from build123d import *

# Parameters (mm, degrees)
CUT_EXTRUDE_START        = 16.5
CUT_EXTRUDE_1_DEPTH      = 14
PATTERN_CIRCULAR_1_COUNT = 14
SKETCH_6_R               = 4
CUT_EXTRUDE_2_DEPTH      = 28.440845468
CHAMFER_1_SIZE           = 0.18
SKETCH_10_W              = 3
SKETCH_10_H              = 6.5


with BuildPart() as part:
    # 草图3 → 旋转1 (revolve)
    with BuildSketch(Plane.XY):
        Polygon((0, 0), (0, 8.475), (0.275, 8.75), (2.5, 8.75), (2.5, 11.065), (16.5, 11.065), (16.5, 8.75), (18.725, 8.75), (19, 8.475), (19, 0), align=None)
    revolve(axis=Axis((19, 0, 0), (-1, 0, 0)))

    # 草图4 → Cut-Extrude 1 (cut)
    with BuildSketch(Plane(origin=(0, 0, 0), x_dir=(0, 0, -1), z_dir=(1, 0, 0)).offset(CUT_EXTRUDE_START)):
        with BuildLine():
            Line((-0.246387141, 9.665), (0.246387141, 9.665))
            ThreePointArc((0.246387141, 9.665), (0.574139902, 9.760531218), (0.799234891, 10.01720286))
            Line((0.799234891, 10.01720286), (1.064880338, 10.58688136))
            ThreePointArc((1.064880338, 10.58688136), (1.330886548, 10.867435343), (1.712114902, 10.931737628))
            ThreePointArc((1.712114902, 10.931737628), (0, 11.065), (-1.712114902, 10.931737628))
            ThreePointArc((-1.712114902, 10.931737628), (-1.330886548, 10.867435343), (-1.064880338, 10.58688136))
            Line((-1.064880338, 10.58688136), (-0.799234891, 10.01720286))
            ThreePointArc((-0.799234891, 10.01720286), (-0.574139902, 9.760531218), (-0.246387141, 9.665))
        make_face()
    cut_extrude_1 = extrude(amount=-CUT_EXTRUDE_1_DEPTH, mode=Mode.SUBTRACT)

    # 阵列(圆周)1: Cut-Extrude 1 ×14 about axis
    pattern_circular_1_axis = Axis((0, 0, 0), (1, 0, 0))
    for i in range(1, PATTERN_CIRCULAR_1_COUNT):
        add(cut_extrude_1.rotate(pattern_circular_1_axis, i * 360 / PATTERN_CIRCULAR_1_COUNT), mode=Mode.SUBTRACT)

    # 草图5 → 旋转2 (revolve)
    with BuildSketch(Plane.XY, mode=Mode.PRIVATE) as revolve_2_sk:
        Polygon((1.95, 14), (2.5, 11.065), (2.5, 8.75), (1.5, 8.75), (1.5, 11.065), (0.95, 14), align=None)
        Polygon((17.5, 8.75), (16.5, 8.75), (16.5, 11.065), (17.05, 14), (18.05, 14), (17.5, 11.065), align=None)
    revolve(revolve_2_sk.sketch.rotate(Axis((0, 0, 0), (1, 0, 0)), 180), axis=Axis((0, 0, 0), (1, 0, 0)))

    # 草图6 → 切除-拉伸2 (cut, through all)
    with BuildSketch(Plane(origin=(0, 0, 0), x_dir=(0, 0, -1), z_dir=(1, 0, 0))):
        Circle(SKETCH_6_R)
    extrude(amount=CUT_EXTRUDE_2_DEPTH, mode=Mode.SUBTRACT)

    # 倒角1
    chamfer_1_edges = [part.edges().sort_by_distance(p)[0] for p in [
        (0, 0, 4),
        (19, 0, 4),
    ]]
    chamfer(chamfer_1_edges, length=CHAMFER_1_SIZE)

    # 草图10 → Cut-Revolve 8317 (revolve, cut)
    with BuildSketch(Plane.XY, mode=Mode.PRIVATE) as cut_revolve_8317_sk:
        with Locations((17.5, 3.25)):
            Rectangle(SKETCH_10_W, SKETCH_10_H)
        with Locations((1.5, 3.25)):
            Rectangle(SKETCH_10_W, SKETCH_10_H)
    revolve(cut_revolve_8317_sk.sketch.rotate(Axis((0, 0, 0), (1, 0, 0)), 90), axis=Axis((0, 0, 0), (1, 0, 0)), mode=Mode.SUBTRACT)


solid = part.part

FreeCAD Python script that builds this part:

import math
import FreeCAD as App
import Part
import Sketcher
Q = App.Units.Quantity


def edges_at(feature, points):
    """Names of the edges that pass closest to the given points."""
    edges = feature.Shape.Edges
    near = lambda p: min(range(len(edges)), key=lambda i: edges[i].distToShape(Part.Vertex(*p))[0])
    return sorted({f"Edge{near(p) + 1}" for p in points})


def add_polygon(sketch, points):
    """Adds a closed chain of lines whose ends are joined by coincident constraints."""
    first, n = sketch.GeometryCount, len(points)
    for a, b in zip(points, points[1:] + points[:1]):
        sketch.addGeometry(Part.LineSegment(App.Vector(*a, 0), App.Vector(*b, 0)), False)
    for i in range(n):
        sketch.addConstraint(Sketcher.Constraint("Coincident", first + i, 2, first + (i + 1) % n, 1))

doc = App.newDocument("Part")
params = doc.addObject("Spreadsheet::Sheet", "Params")
for row, (alias, value) in enumerate([
    ("sketch1_width", "19 mm"),
    ("sketch1_width2", "14 mm"),
    ("revolution_angle", "360 deg"),
    ("sketch2_radius", "0.61 mm"),
    ("pocket1_length", "14 mm"),
    ("sketch3_width", "1 mm"),
    ("revolution2_angle", "360 deg"),
    ("sketch4_diameter", "8 mm"),
    ("chamfer_size", "0.18 mm"),
    ("sketch5_width", "3 mm"),
    ("sketch5_height", "6.5 mm"),
    ("groove_angle", "360 deg"),
], start=1):
    params.set(f"A{row}", alias)
    params.set(f"B{row}", "=" + value)
    params.setAlias(f"B{row}", alias)

body = doc.addObject("PartDesign::Body", "Body")

# Sketch on XY plane
sketch1 = body.newObject("Sketcher::SketchObject", "Sketch")
sketch1.AttachmentSupport = (doc.getObject("XY_Plane"), [""])
sketch1.MapMode = "FlatFace"
add_polygon(sketch1, [(0, 8.47), (0, 0), (19, 0), (19, 8.47), (18.73, 8.75), (16.5, 8.75), (16.5, 11.06), (2.5, 11.06), (2.5, 8.75), (0.28, 8.75)])  # lines 0-9
sketch1.addConstraint(Sketcher.Constraint("Vertical", 0))
sketch1.addConstraint(Sketcher.Constraint("Horizontal", 1))
sketch1.addConstraint(Sketcher.Constraint("Vertical", 2))
sketch1.addConstraint(Sketcher.Constraint("Horizontal", 4))
sketch1.addConstraint(Sketcher.Constraint("Vertical", 5))
sketch1.addConstraint(Sketcher.Constraint("Horizontal", 6))
sketch1.addConstraint(Sketcher.Constraint("Vertical", 7))
sketch1.addConstraint(Sketcher.Constraint("Horizontal", 8))
sketch1.addConstraint(Sketcher.Constraint("Coincident", 0, 2, -1, 1))
sketch1.addConstraint(Sketcher.Constraint("Perpendicular", 3, 9))
sketch1.addConstraint(Sketcher.Constraint("Horizontal", 4, 2, 7, 2))
sketch1.addConstraint(Sketcher.Constraint("Horizontal", 2, 2, 9, 2))
sketch1.addConstraint(Sketcher.Constraint("Equal", 4, 8))
sketch1.addConstraint(Sketcher.Constraint("Equal", 3, 9))
sketch1.addConstraint(Sketcher.Constraint("DistanceX", 1, 1, 1, 2, Q("19 mm")))
sketch1.addConstraint(Sketcher.Constraint("DistanceX", 6, 2, 6, 1, Q("14 mm")))
sketch1.addConstraint(Sketcher.Constraint("DistanceX", 4, 2, 4, 1, Q("2.225 mm")))
sketch1.addConstraint(Sketcher.Constraint("DistanceY", 0, 2, 0, 1, Q("8.475 mm")))
sketch1.addConstraint(Sketcher.Constraint("DistanceY", 5, 1, 5, 2, Q("2.315 mm")))
sketch1.setExpression("Constraints[24]", "Params.sketch1_width")
sketch1.setExpression("Constraints[25]", "Params.sketch1_width2")
revolution = body.newObject("PartDesign::Revolution", "Revolution")
revolution.Profile = sketch1
revolution.ReferenceAxis = (sketch1, ["H_Axis"])
revolution.setExpression("Angle", "Params.revolution_angle")

# Sketch on YZ plane
sketch2 = body.newObject("Sketcher::SketchObject", "Sketch001")
sketch2.AttachmentSupport = (doc.getObject("YZ_Plane"), [""])
sketch2.MapMode = "FlatFace"
sketch2.AttachmentOffset = App.Placement(App.Vector(0, 0, 16.5), App.Rotation())
sketch2.addGeometry(Part.LineSegment(App.Vector(9.66, 0.25, 0), App.Vector(9.66, -0.25, 0)), False)
sketch2.addGeometry(Part.ArcOfCircle(Part.Circle(App.Vector(10.28, -0.25, 0), App.Vector(0, 0, 1), 0.61), math.radians(180), math.radians(245)), False)
sketch2.addGeometry(Part.LineSegment(App.Vector(10.02, -0.8, 0), App.Vector(10.59, -1.06, 0)), False)
sketch2.addGeometry(Part.ArcOfCircle(Part.Circle(App.Vector(10.33, -1.62, 0), App.Vector(0, 0, 1), 0.61), math.radians(-9), math.radians(65)), False)
sketch2.addGeometry(Part.ArcOfCircle(Part.Circle(App.Vector(0, 0, 0), App.Vector(0, 0, 1), 11.07), math.radians(-8.9), math.radians(8.9)), False)
sketch2.addGeometry(Part.ArcOfCircle(Part.Circle(App.Vector(10.33, 1.62, 0), App.Vector(0, 0, 1), 0.61), math.radians(-65), math.radians(9)), False)
sketch2.addGeometry(Part.LineSegment(App.Vector(10.59, 1.06, 0), App.Vector(10.02, 0.8, 0)), False)
sketch2.addGeometry(Part.ArcOfCircle(Part.Circle(App.Vector(10.28, 0.25, 0), App.Vector(0, 0, 1), 0.61), math.radians(115), math.radians(180)), False)
sketch2.addConstraint(Sketcher.Constraint("Tangent", 0, 2, 1, 1))
sketch2.addConstraint(Sketcher.Constraint("Tangent", 1, 2, 2, 1))
sketch2.addConstraint(Sketcher.Constraint("Tangent", 2, 2, 3, 2))
sketch2.addConstraint(Sketcher.Constraint("Tangent", 3, 1, 4, 1))
sketch2.addConstraint(Sketcher.Constraint("Tangent", 4, 2, 5, 2))
sketch2.addConstraint(Sketcher.Constraint("Tangent", 5, 1, 6, 1))
sketch2.addConstraint(Sketcher.Constraint("Tangent", 6, 2, 7, 1))
sketch2.addConstraint(Sketcher.Constraint("Tangent", 7, 2, 0, 1))
sketch2.addConstraint(Sketcher.Constraint("Vertical", 0))
sketch2.addConstraint(Sketcher.Constraint("Coincident", 4, 3, -1, 1))
sketch2.addConstraint(Sketcher.Constraint("Equal", 1, 3))
sketch2.addConstraint(Sketcher.Constraint("Equal", 3, 5))
sketch2.addConstraint(Sketcher.Constraint("Equal", 5, 7))
sketch2.addConstraint(Sketcher.Constraint("Symmetric", 2, 2, 5, 1, -1))
sketch2.addConstraint(Sketcher.Constraint("Angle", 2, Q("-25 deg")))
sketch2.addConstraint(Sketcher.Constraint("Radius", 1, Q("0.61 mm")))
sketch2.addConstraint(Sketcher.Constraint("Radius", 4, Q("11.065 mm")))
sketch2.addConstraint(Sketcher.Constraint("DistanceX", -1, 1, 1, 3, Q("10.275 mm")))
sketch2.addConstraint(Sketcher.Constraint("Distance", 2, Q("0.628571 mm")))
sketch2.setExpression("Constraints[15]", "Params.sketch2_radius")
pocket1 = body.newObject("PartDesign::Pocket", "Pocket")
pocket1.Profile = sketch2
pocket1.setExpression("Length", "Params.pocket1_length")
doc.recompute()

polarpattern = body.newObject("PartDesign::PolarPattern", "PolarPattern")
polarpattern.Originals = [pocket1]
polarpattern.Axis = (doc.getObject("X_Axis"), [""])
polarpattern.Angle = 360
polarpattern.Occurrences = 14
body.Tip = polarpattern

# Sketch on XY plane
sketch3 = body.newObject("Sketcher::SketchObject", "Sketch002")
sketch3.AttachmentSupport = (doc.getObject("XY_Plane"), [""])
sketch3.MapMode = "FlatFace"
add_polygon(sketch3, [(2.5, 11.1), (1.9, 14), (0.9, 14), (1.5, 11.1), (1.5, 8.8), (2.5, 8.8)])  # lines 0-5
add_polygon(sketch3, [(16.5, 8.8), (17.5, 8.8), (17.5, 11.1), (18.1, 14), (17.1, 14), (16.5, 11.1)])  # lines 6-11
sketch3.addConstraint(Sketcher.Constraint("Horizontal", 1))
sketch3.addConstraint(Sketcher.Constraint("Vertical", 3))
sketch3.addConstraint(Sketcher.Constraint("Horizontal", 4))
sketch3.addConstraint(Sketcher.Constraint("Vertical", 5))
sketch3.addConstraint(Sketcher.Constraint("Horizontal", 6))
sketch3.addConstraint(Sketcher.Constraint("Vertical", 7))
sketch3.addConstraint(Sketcher.Constraint("Horizontal", 9))
sketch3.addConstraint(Sketcher.Constraint("Vertical", 11))
sketch3.addConstraint(Sketcher.Constraint("Parallel", 0, 2))
sketch3.addConstraint(Sketcher.Constraint("Parallel", 8, 10))
sketch3.addConstraint(Sketcher.Constraint("Horizontal", 2, 2, 5, 2))
sketch3.addConstraint(Sketcher.Constraint("Horizontal", 4, 2, 6, 2))
sketch3.addConstraint(Sketcher.Constraint("Horizontal", 5, 2, 7, 2))
sketch3.addConstraint(Sketcher.Constraint("Horizontal", 1, 2, 8, 2))
sketch3.addConstraint(Sketcher.Constraint("Horizontal", 7, 2, 10, 2))
sketch3.addConstraint(Sketcher.Constraint("Equal", 4, 6))
sketch3.addConstraint(Sketcher.Constraint("Equal", 2, 8))
sketch3.addConstraint(Sketcher.Constraint("DistanceX", 1, 2, 1, 1, Q("1 mm")))
sketch3.addConstraint(Sketcher.Constraint("DistanceY", -1, 1, 0, 2, Q("14 mm")))
sketch3.addConstraint(Sketcher.Constraint("DistanceX", 4, 2, 6, 2, Q("15 mm")))
sketch3.addConstraint(Sketcher.Constraint("DistanceX", -1, 1, 2, 2, Q("1.5 mm")))
sketch3.addConstraint(Sketcher.Constraint("DistanceX", 0, 2, 8, 2, Q("16.1 mm")))
sketch3.addConstraint(Sketcher.Constraint("DistanceY", 3, 2, 3, 1, Q("2.315 mm")))
sketch3.addConstraint(Sketcher.Constraint("DistanceY", -1, 1, 3, 2, Q("8.75 mm")))
sketch3.setExpression("Constraints[29]", "Params.sketch3_width")
revolution2 = body.newObject("PartDesign::Revolution", "Revolution001")
revolution2.Profile = sketch3
revolution2.ReferenceAxis = (sketch3, ["H_Axis"])
revolution2.setExpression("Angle", "Params.revolution2_angle")

# Sketch on YZ plane
sketch4 = body.newObject("Sketcher::SketchObject", "Sketch003")
sketch4.AttachmentSupport = (doc.getObject("YZ_Plane"), [""])
sketch4.MapMode = "FlatFace"
sketch4.addGeometry(Part.Circle(App.Vector(0, 0, 0), App.Vector(0, 0, 1), 4), False)
sketch4.addConstraint(Sketcher.Constraint("Coincident", 0, 3, -1, 1))
sketch4.addConstraint(Sketcher.Constraint("Diameter", 0, Q("8 mm")))
sketch4.setExpression("Constraints[1]", "Params.sketch4_diameter")
pocket2 = body.newObject("PartDesign::Pocket", "Pocket001")
pocket2.Profile = sketch4
pocket2.Type = "ThroughAll"
pocket2.Reversed = True
doc.recompute()

chamfer = body.newObject("PartDesign::Chamfer", "Chamfer")
chamfer.Base = (pocket2, edges_at(pocket2, [(0, 0, 4), (19, 0, 4)]))
chamfer.setExpression("Size", "Params.chamfer_size")

# Sketch on XY plane
sketch5 = body.newObject("Sketcher::SketchObject", "Sketch004")
sketch5.AttachmentSupport = (doc.getObject("XY_Plane"), [""])
sketch5.MapMode = "FlatFace"
add_polygon(sketch5, [(16, 6.5), (16, 0), (19, 0), (19, 6.5)])  # lines 0-3
add_polygon(sketch5, [(0, 6.5), (0, 0), (3, 0), (3, 6.5)])  # lines 4-7
sketch5.addConstraint(Sketcher.Constraint("Vertical", 0))
sketch5.addConstraint(Sketcher.Constraint("Horizontal", 1))
sketch5.addConstraint(Sketcher.Constraint("Vertical", 2))
sketch5.addConstraint(Sketcher.Constraint("Horizontal", 3))
sketch5.addConstraint(Sketcher.Constraint("Vertical", 4))
sketch5.addConstraint(Sketcher.Constraint("Horizontal", 5))
sketch5.addConstraint(Sketcher.Constraint("Vertical", 6))
sketch5.addConstraint(Sketcher.Constraint("Horizontal", 7))
sketch5.addConstraint(Sketcher.Constraint("Coincident", 4, 2, -1, 1))
sketch5.addConstraint(Sketcher.Constraint("PointOnObject", 0, 2, -1))
sketch5.addConstraint(Sketcher.Constraint("Horizontal", 3, 2, 6, 2))
sketch5.addConstraint(Sketcher.Constraint("Equal", 3, 5))
sketch5.addConstraint(Sketcher.Constraint("DistanceX", 1, 1, 1, 2, Q("3 mm")))
sketch5.addConstraint(Sketcher.Constraint("DistanceY", 0, 2, 0, 1, Q("6.5 mm")))
sketch5.addConstraint(Sketcher.Constraint("DistanceX", -1, 1, 0, 2, Q("16 mm")))
sketch5.setExpression("Constraints[20]", "Params.sketch5_width")
sketch5.setExpression("Constraints[21]", "Params.sketch5_height")
groove = body.newObject("PartDesign::Groove", "Groove")
groove.Profile = sketch5
groove.ReferenceAxis = (sketch5, ["H_Axis"])
groove.setExpression("Angle", "Params.groove_angle")

doc.recompute()
